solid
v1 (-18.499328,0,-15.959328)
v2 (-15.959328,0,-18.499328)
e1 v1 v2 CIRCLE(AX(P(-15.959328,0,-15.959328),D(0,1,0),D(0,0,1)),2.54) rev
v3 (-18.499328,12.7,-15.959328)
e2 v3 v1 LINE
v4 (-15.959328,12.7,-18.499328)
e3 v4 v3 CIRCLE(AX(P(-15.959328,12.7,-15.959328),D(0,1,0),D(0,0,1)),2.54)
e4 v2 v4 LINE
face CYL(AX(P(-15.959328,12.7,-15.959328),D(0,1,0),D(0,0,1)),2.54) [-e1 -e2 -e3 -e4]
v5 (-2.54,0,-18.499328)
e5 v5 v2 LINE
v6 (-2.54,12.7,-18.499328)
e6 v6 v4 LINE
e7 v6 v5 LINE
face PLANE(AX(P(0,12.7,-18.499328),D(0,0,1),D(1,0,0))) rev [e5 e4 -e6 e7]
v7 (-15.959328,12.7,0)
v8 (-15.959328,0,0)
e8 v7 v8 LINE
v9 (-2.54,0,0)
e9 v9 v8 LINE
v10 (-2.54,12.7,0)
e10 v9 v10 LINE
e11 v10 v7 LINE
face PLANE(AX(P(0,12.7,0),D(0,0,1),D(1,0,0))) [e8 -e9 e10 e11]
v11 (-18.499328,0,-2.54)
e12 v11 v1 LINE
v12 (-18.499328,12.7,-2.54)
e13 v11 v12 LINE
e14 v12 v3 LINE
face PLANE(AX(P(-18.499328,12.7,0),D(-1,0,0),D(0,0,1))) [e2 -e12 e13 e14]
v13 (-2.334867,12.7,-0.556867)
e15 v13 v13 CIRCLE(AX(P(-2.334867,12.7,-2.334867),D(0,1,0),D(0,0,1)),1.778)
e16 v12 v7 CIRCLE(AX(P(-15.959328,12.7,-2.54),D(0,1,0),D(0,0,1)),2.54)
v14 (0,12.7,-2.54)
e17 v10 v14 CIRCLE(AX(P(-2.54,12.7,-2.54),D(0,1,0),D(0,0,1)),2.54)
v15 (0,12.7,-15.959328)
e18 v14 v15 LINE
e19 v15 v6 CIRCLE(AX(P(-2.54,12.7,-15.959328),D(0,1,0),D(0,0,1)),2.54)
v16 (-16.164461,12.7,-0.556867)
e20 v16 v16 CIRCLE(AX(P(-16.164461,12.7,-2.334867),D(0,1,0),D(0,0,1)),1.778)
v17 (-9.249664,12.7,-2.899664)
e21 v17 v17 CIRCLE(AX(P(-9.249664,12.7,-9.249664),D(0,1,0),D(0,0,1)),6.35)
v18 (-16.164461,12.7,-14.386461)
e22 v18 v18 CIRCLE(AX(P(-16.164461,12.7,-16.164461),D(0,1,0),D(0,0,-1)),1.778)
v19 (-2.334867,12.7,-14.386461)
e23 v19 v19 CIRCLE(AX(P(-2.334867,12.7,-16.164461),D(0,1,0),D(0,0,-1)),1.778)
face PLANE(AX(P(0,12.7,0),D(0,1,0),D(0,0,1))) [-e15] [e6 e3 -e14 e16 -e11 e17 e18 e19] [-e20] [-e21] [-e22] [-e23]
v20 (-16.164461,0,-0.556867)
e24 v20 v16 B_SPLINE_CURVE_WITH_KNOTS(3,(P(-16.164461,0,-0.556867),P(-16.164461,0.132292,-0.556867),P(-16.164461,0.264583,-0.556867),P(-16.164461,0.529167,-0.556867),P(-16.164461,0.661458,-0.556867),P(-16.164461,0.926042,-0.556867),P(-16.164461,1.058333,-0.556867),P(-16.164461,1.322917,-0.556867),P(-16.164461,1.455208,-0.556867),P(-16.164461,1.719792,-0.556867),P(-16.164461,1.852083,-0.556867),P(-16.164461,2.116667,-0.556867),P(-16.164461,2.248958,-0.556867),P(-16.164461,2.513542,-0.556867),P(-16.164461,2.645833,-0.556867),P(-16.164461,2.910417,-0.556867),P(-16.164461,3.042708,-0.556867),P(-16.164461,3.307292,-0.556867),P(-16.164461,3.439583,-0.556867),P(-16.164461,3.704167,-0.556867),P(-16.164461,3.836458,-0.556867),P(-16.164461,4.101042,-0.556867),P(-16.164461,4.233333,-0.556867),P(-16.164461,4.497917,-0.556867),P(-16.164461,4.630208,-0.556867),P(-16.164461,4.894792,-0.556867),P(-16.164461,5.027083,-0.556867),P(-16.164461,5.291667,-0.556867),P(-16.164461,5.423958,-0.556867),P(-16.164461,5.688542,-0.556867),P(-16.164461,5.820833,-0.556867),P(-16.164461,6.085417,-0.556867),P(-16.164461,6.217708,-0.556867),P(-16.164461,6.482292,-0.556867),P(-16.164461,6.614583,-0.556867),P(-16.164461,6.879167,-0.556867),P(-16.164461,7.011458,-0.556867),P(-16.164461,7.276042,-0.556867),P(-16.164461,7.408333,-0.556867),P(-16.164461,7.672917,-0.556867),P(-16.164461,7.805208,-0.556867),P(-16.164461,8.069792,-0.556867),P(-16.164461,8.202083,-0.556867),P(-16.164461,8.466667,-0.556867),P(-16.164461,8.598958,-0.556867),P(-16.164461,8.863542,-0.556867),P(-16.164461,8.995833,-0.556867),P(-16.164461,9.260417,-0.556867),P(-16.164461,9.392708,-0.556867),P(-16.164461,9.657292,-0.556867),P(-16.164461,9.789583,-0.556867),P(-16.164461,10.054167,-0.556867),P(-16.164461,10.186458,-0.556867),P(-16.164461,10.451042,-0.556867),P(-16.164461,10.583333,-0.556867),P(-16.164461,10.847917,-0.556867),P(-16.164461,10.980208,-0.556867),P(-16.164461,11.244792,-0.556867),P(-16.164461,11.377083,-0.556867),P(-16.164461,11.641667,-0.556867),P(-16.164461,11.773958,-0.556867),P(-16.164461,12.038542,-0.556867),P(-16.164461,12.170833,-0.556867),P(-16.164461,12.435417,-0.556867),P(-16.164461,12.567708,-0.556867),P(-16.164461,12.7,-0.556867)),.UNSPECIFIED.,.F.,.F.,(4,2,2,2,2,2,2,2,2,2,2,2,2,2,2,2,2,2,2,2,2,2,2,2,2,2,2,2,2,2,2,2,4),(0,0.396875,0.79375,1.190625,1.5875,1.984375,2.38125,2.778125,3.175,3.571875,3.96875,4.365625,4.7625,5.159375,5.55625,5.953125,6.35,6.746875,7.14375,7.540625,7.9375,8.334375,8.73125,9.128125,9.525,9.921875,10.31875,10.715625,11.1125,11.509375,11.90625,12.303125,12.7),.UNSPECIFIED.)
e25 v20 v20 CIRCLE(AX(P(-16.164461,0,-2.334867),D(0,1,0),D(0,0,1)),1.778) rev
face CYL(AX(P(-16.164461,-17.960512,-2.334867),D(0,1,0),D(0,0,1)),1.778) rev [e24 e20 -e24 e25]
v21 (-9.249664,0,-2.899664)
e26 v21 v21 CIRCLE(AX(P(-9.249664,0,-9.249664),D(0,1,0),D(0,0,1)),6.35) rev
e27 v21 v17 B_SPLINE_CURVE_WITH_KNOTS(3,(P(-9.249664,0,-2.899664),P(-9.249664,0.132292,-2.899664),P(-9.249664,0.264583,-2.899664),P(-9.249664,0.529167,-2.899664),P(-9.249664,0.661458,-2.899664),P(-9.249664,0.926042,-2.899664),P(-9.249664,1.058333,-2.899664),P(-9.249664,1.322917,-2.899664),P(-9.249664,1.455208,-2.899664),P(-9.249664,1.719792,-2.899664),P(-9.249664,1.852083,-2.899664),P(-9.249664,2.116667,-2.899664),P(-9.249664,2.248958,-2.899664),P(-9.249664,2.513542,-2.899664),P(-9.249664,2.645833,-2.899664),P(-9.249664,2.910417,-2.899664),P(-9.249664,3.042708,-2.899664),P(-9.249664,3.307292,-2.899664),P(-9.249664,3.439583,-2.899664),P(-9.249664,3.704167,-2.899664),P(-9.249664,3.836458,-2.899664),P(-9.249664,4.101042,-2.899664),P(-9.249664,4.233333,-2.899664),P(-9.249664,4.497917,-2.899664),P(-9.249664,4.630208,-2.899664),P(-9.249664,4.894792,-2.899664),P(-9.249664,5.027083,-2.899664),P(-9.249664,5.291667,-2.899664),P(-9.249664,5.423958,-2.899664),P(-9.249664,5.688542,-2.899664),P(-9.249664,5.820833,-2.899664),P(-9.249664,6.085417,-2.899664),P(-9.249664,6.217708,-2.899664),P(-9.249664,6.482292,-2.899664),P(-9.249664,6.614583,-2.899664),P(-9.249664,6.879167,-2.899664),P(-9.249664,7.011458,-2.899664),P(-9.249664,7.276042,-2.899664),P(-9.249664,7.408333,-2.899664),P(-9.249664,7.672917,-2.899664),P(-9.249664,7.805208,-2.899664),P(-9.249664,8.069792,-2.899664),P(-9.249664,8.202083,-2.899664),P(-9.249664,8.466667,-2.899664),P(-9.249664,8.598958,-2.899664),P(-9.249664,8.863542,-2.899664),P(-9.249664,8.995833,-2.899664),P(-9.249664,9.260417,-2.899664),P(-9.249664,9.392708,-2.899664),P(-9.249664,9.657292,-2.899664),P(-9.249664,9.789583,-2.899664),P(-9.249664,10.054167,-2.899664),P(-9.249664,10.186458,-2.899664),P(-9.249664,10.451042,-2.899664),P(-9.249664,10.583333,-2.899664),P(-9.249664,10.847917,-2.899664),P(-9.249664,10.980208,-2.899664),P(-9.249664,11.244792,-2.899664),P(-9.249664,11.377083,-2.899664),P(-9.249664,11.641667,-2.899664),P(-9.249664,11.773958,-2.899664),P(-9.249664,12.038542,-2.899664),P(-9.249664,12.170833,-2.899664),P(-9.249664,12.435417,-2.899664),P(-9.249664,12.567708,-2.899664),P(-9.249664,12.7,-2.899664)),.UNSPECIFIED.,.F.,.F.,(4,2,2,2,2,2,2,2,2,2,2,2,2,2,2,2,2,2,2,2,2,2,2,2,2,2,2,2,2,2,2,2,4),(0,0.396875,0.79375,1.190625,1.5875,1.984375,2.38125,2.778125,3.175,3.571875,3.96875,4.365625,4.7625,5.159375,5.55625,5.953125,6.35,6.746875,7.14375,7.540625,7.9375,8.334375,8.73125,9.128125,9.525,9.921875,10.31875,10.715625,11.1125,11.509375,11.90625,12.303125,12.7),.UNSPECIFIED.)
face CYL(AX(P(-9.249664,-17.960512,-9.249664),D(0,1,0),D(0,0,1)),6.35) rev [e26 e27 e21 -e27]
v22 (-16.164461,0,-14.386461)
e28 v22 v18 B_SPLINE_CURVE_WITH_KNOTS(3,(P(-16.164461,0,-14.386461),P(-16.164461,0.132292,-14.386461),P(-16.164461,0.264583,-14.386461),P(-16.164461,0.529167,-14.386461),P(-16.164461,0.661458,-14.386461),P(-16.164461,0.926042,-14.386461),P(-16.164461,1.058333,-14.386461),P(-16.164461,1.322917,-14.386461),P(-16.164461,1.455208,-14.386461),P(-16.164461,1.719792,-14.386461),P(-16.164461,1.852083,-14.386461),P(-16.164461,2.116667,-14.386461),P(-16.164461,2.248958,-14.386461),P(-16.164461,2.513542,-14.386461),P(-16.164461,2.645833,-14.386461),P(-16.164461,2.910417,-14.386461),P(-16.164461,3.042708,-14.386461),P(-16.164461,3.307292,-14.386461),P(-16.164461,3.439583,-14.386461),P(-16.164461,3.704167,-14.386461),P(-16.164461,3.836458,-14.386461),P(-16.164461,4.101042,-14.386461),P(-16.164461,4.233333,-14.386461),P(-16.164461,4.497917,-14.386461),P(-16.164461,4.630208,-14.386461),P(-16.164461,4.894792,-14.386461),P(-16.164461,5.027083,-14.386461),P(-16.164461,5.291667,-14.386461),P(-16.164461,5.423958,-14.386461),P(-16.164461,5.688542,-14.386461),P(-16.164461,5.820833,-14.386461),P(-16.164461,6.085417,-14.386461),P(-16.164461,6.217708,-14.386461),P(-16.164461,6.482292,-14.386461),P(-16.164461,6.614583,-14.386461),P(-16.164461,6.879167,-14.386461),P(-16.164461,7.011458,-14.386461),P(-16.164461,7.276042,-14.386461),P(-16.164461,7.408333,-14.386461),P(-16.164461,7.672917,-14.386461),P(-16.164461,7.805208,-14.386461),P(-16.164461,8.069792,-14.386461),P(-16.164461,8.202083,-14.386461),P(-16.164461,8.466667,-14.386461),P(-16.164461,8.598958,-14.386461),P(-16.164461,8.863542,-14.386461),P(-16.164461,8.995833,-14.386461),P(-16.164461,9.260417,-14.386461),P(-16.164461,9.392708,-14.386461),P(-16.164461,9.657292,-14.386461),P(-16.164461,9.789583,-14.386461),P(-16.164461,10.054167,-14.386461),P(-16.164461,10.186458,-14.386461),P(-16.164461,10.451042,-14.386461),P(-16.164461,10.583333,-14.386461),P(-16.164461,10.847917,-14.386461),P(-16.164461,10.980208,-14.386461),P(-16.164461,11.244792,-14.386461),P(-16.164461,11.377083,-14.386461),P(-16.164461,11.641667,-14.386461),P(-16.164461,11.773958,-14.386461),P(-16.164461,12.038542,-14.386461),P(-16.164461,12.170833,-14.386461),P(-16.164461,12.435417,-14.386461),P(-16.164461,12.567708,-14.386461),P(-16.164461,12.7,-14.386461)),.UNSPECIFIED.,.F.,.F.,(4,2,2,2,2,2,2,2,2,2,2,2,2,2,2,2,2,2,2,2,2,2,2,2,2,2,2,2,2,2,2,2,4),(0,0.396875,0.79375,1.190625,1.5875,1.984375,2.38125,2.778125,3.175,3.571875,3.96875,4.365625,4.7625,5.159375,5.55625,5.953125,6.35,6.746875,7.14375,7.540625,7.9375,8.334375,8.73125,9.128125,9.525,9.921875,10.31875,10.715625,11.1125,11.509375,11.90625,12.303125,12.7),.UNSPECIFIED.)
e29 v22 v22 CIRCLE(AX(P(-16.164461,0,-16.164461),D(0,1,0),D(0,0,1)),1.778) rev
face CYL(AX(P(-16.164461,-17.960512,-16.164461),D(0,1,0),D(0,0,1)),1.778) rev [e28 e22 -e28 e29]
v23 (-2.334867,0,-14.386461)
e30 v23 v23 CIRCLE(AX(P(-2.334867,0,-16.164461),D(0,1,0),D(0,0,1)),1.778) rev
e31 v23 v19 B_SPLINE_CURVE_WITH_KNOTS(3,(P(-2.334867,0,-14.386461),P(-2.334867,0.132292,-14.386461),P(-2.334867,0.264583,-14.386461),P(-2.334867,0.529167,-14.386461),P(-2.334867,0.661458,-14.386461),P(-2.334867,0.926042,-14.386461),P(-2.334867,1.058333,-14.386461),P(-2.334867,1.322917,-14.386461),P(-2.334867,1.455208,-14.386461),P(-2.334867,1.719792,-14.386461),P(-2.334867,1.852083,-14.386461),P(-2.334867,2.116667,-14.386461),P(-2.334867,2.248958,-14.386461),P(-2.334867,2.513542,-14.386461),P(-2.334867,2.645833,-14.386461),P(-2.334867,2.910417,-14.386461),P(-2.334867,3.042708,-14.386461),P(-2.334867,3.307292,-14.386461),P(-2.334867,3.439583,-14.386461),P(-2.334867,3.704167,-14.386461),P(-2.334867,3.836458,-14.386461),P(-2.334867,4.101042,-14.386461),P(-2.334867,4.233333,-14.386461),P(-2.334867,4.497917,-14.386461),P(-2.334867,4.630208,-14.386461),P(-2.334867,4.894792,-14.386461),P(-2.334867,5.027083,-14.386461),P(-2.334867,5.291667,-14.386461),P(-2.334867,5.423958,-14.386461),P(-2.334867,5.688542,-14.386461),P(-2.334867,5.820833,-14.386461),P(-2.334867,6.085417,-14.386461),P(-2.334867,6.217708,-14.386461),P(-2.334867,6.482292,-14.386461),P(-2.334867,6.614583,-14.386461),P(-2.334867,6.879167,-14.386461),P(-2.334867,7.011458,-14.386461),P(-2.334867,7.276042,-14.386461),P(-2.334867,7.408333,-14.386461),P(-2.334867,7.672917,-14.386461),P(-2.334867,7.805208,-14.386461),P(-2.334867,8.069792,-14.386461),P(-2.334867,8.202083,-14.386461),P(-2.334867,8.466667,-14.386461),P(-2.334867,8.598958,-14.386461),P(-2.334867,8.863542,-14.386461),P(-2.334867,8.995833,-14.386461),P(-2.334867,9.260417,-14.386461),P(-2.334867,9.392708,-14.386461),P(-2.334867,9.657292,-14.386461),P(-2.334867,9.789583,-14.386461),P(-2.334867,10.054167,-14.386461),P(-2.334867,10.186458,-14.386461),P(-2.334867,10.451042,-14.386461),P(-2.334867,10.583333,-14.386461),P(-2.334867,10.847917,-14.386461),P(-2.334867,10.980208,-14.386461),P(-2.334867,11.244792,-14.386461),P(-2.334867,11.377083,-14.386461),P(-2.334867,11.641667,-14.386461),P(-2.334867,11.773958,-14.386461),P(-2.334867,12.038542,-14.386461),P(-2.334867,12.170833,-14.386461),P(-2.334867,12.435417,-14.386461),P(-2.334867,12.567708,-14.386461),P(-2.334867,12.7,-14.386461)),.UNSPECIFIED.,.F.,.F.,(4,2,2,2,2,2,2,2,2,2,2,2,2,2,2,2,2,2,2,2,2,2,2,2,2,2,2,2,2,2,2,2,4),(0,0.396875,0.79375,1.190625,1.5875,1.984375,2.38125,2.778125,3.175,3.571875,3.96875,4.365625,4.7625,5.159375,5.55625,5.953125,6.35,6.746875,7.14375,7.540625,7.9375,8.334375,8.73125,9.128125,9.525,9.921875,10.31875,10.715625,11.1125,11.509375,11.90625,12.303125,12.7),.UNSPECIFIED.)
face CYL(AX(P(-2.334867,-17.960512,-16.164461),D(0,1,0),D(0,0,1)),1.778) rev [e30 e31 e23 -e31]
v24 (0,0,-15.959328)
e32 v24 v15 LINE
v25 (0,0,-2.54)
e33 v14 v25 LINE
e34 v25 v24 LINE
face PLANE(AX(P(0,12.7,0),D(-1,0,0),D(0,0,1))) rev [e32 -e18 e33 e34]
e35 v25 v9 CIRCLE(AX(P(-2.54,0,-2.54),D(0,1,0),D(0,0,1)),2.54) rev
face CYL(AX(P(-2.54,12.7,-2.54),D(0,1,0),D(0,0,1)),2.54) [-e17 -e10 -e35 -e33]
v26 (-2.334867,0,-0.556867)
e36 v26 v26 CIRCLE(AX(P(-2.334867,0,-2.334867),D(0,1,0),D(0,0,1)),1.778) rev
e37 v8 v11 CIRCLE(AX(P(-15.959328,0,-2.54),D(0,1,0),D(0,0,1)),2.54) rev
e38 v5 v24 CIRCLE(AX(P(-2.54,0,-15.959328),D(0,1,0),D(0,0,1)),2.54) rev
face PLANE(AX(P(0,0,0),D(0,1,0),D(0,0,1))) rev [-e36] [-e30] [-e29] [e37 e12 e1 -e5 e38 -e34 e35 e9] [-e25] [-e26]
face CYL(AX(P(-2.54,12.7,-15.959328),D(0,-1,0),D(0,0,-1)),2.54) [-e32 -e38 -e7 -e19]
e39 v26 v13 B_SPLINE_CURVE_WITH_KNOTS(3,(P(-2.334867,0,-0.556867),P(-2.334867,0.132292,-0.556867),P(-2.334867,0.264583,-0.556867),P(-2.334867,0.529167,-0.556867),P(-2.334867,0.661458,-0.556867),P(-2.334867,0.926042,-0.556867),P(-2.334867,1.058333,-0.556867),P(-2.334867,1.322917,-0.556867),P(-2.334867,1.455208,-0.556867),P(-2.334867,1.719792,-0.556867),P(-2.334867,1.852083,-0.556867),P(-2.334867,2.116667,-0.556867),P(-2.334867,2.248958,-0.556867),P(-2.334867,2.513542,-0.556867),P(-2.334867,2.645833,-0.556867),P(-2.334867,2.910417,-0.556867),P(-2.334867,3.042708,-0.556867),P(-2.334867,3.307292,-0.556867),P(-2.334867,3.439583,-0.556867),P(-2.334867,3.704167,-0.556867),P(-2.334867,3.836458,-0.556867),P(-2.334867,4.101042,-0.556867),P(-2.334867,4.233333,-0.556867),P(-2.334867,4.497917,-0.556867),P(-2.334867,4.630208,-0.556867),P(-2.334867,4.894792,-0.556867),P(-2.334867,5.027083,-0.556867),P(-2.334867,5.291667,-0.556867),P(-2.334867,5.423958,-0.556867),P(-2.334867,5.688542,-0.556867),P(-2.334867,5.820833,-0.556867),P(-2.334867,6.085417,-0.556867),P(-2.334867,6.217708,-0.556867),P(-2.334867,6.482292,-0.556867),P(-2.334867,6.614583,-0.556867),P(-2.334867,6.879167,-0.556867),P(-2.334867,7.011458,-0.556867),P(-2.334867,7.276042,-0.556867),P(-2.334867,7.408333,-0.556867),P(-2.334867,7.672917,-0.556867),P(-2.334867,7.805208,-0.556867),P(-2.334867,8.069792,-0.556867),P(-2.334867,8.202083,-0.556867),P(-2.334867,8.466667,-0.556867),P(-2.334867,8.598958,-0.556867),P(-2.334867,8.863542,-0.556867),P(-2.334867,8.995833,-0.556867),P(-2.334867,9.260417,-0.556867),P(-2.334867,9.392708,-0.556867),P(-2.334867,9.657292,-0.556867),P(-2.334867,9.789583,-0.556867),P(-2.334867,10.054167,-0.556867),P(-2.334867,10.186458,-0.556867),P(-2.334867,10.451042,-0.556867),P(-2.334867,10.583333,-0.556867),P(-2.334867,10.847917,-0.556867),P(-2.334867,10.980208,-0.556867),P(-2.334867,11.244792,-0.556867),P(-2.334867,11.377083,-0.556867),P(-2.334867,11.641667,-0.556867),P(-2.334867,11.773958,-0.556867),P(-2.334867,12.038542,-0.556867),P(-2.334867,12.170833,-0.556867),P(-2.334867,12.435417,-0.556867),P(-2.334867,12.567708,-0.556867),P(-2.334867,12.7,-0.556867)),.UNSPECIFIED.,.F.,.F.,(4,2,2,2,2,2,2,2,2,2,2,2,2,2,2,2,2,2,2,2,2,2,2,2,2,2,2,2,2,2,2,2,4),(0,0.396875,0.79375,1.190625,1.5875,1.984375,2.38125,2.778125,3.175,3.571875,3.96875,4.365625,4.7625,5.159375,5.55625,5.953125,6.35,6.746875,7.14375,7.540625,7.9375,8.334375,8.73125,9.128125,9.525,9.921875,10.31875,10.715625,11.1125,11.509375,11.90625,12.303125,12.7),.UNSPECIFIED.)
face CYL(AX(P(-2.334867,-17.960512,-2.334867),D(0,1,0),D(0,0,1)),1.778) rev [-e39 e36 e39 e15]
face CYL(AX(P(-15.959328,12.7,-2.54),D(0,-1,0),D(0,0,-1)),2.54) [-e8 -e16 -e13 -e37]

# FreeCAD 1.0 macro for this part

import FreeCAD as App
import Part
import Sketcher
Q = App.Units.Quantity


def edges_at(feature, points):
    """Names of the edges that pass closest to the given points."""
    edges = feature.Shape.Edges
    near = lambda p: min(range(len(edges)), key=lambda i: edges[i].distToShape(Part.Vertex(*p))[0])
    return sorted({f"Edge{near(p) + 1}" for p in points})


def add_polygon(sketch, points):
    """Adds a closed chain of lines whose ends are joined by coincident constraints."""
    first, n = sketch.GeometryCount, len(points)
    for a, b in zip(points, points[1:] + points[:1]):
        sketch.addGeometry(Part.LineSegment(App.Vector(*a, 0), App.Vector(*b, 0)), False)
    for i in range(n):
        sketch.addConstraint(Sketcher.Constraint("Coincident", first + i, 2, first + (i + 1) % n, 1))

doc = App.newDocument("Part")
params = doc.addObject("Spreadsheet::Sheet", "Params")
for row, (alias, value) in enumerate([
    ("pad1_length", "0.5 in"),
    ("fillet_radius", "0.1 in"),
    ("sketch2_diameter", "0.5 in"),
    ("sketch2_diameter2", "0.14 in"),
    ("pocket1_length", "0.5 in"),
], start=1):
    params.set(f"A{row}", alias)
    params.set(f"B{row}", "=" + value)
    params.setAlias(f"B{row}", alias)

body = doc.addObject("PartDesign::Body", "Body")

sketch1 = body.newObject("Sketcher::SketchObject", "Sketch")
sketch1.AttachmentSupport = (doc.getObject("XZ_Plane"), [""])
sketch1.MapMode = "FlatFace"
add_polygon(sketch1, [(-18.499328, -18.499328), (-18.499328, 0), (0, 0), (0, -18.499328)])
sketch1.addConstraint([
    Sketcher.Constraint("Vertical", 0),
    Sketcher.Constraint("Horizontal", 1),
    Sketcher.Constraint("Vertical", 2),
    Sketcher.Constraint("Horizontal", 3),
    Sketcher.Constraint("Coincident", 1, 2, -1, 1),
    Sketcher.Constraint("Equal", 3, 0),
    Sketcher.Constraint("DistanceX", 1, 1, 1, 2, 18.499328),
])
pad1 = body.newObject("PartDesign::Pad", "Pad")
pad1.Profile = sketch1
pad1.setExpression("Length", "Params.pad1_length")
pad1.Reversed = True
doc.recompute()

fillet = body.newObject("PartDesign::Fillet", "Fillet")
fillet.Base = (pad1, edges_at(pad1, [
    (0, 6.35, 0),
    (-18.499, 6.35, 0),
    (-18.499, 6.35, -18.499),
    (0, 6.35, -18.499),
]))
fillet.setExpression("Radius", "Params.fillet_radius")

sketch2 = body.newObject("Sketcher::SketchObject", "Sketch001")
sketch2.AttachmentSupport = (doc.getObject("XZ_Plane"), [""])
sketch2.MapMode = "FlatFace"
sketch2.AttachmentOffset = App.Placement(App.Vector(0, 0, -0.5 * 25.4), App.Rotation())
sketch2.addGeometry([
    Part.Circle(App.Vector(-9.249664, -9.249664, 0), App.Vector(0, 0, 1), 6.35),
    Part.Circle(App.Vector(-2.334867, -2.334867, 0), App.Vector(0, 0, 1), 1.778),
    Part.Circle(App.Vector(-16.164461, -2.334867, 0), App.Vector(0, 0, 1), 1.778),
    Part.Circle(App.Vector(-16.164461, -16.164461, 0), App.Vector(0, 0, 1), 1.778),
    Part.Circle(App.Vector(-2.334867, -16.164461, 0), App.Vector(0, 0, 1), 1.778),
], False)
sketch2.addConstraint([
    Sketcher.Constraint("Equal", 1, 2),
    Sketcher.Constraint("Equal", 2, 3),
    Sketcher.Constraint("Equal", 3, 4),
    Sketcher.Constraint("Horizontal", 1, 3, 2, 3),
    Sketcher.Constraint("Horizontal", 3, 3, 4, 3),
    Sketcher.Constraint("Vertical", 2, 3, 3, 3),
    Sketcher.Constraint("Vertical", 1, 3, 4, 3),
    Sketcher.Constraint("Diameter", 0, Q("0.5 in")),
    Sketcher.Constraint("Diameter", 1, Q("0.14 in")),
    Sketcher.Constraint("DistanceX", 2, 3, -1, 1, 16.164461),
    Sketcher.Constraint("DistanceY", 3, 3, -1, 1, 16.164461),
    Sketcher.Constraint("DistanceX", 0, 3, -1, 1, 9.249664),
    Sketcher.Constraint("DistanceY", 0, 3, -1, 1, 9.249664),
    Sketcher.Constraint("DistanceX", 1, 3, -1, 1, 2.334867),
    Sketcher.Constraint("DistanceY", 1, 3, -1, 1, 2.334867),
])
sketch2.setExpression("Constraints[7]", "Params.sketch2_diameter")
sketch2.setExpression("Constraints[8]", "Params.sketch2_diameter2")
pocket1 = body.newObject("PartDesign::Pocket", "Pocket")
pocket1.Profile = sketch2
pocket1.setExpression("Length", "Params.pocket1_length")
pocket1.Reversed = True

doc.recompute()
